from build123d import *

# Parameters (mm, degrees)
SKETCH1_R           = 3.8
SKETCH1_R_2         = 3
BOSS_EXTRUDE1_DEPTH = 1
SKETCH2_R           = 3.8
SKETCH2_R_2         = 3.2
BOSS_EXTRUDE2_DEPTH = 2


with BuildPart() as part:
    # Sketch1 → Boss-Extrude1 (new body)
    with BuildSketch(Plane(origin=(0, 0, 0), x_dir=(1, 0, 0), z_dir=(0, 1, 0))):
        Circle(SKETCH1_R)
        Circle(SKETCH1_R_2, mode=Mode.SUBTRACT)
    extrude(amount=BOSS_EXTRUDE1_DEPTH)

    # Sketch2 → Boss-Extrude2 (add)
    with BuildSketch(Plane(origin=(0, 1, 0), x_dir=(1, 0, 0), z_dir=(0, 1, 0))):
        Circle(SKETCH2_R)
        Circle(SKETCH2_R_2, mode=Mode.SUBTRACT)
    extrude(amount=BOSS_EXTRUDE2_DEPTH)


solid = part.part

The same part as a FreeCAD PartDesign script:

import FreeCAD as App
import Part
import Sketcher

doc = App.newDocument("Part")
body = doc.addObject("PartDesign::Body", "Body")

# Sketch on XZ plane
sketch1 = body.newObject("Sketcher::SketchObject", "Sketch")
sketch1.AttachmentSupport = (doc.getObject("XZ_Plane"), [""])
sketch1.MapMode = "FlatFace"
sketch1.addGeometry([
    Part.Circle(App.Vector(0, 0, 0), App.Vector(0, 0, 1), 3.8),
    Part.Circle(App.Vector(0, 0, 0), App.Vector(0, 0, 1), 3),
], False)
sketch1.addConstraint([
    Sketcher.Constraint("Coincident", 0, 3, -1, 1),
    Sketcher.Constraint("Coincident", 1, 3, -1, 1),
    Sketcher.Constraint("Diameter", 1, 6.0),
    Sketcher.Constraint("Diameter", 0, 7.6),
])
pad1 = body.newObject("PartDesign::Pad", "Pad")
pad1.Profile = sketch1
pad1.Length = 1
pad1.Reversed = True

# Sketch on XZ plane
sketch2 = body.newObject("Sketcher::SketchObject", "Sketch001")
sketch2.AttachmentSupport = (doc.getObject("XZ_Plane"), [""])
sketch2.MapMode = "FlatFace"
sketch2.AttachmentOffset = App.Placement(App.Vector(0, 0, -1), App.Rotation())
sketch2.addGeometry([
    Part.Circle(App.Vector(0, 0, 0), App.Vector(0, 0, 1), 3.8),
    Part.Circle(App.Vector(0, 0, 0), App.Vector(0, 0, 1), 3.2),
], False)
sketch2.addConstraint([
    Sketcher.Constraint("Coincident", 0, 3, -1, 1),
    Sketcher.Constraint("Coincident", 1, 3, -1, 1),
    Sketcher.Constraint("Diameter", 0, 7.6),
    Sketcher.Constraint("Diameter", 1, 6.4),
])
pad2 = body.newObject("PartDesign::Pad", "Pad001")
pad2.Profile = sketch2
pad2.Length = 2
pad2.Reversed = True

doc.recompute()
